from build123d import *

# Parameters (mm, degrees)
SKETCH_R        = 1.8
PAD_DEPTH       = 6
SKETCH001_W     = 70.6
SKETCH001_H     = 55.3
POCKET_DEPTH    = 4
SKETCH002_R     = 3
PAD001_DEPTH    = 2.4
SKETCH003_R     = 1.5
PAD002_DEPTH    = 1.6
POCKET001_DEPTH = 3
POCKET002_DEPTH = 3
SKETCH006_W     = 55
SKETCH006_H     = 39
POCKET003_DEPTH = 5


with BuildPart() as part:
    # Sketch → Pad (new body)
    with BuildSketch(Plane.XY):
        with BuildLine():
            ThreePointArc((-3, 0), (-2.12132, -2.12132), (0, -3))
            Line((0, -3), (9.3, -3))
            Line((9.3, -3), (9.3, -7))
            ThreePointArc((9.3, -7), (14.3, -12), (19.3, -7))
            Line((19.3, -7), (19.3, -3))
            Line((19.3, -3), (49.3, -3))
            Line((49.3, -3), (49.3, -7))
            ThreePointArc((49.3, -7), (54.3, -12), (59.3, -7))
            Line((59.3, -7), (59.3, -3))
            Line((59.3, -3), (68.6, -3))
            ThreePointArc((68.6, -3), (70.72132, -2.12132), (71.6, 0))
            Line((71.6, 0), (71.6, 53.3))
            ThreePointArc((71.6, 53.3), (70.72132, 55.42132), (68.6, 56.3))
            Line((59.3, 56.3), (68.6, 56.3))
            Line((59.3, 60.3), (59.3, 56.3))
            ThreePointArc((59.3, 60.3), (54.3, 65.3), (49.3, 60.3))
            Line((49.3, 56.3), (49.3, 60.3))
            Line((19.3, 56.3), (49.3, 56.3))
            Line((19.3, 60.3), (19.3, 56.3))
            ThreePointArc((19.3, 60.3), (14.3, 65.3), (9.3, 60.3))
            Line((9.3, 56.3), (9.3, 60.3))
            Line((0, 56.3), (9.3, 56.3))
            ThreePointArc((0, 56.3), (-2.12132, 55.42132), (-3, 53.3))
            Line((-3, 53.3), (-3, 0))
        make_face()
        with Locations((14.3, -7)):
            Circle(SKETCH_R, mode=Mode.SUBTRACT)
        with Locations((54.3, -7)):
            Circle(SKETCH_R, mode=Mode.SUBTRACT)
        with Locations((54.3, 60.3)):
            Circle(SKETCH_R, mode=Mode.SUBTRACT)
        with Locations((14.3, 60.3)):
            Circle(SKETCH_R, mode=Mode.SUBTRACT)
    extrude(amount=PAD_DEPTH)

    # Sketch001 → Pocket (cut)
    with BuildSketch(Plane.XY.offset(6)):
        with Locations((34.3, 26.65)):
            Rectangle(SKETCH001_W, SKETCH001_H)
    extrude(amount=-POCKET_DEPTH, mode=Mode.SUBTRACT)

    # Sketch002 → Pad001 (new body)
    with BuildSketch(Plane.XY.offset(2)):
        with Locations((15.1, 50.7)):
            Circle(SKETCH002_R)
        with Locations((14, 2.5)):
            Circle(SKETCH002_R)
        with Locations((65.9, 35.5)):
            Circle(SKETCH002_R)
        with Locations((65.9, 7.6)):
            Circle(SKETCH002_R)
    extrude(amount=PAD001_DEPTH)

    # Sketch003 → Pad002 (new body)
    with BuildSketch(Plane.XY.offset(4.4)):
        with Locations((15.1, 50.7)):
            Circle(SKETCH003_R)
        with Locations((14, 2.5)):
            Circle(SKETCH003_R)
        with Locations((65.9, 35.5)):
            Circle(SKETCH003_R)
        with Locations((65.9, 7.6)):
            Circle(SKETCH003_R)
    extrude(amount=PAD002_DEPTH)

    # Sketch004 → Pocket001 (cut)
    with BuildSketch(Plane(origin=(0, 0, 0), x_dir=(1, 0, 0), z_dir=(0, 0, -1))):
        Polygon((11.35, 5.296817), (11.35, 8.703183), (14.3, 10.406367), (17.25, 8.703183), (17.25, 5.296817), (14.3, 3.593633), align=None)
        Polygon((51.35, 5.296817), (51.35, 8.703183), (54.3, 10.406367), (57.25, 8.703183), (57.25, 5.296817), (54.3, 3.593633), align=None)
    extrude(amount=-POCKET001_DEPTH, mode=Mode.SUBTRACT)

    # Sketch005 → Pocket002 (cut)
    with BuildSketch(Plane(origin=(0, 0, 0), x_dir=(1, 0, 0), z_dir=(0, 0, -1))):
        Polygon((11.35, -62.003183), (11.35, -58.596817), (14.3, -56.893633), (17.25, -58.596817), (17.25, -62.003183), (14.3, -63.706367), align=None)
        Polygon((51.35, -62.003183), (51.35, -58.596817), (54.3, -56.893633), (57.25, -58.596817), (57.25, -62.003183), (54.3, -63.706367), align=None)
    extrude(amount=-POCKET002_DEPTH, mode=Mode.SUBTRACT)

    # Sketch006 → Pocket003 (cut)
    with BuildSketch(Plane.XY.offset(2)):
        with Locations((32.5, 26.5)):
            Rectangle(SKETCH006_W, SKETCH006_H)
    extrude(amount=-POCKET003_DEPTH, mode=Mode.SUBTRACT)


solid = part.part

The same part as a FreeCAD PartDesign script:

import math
import FreeCAD as App
import Part
import Sketcher
from FreeCAD import Vector
Q = App.Units.Quantity

doc = App.newDocument("Part")
params = doc.addObject("Spreadsheet::Sheet", "Params")
for row, (alias, value) in enumerate([
    ("sketch1_radius", "3.000001 mm"),
    ("sketch1_radius2", "5 mm"),
    ("sketch1_diameter", "3.6 mm"),
    ("sketch1_width", "30 mm"),
    ("sketch1_height", "4 mm"),
    ("pad1_length", "6 mm"),
    ("sketch2_width", "70.6 mm"),
    ("sketch2_height", "55.3 mm"),
    ("pocket1_length", "4 mm"),
    ("sketch3_diameter", "6 mm"),
    ("pad2_length", "2.4 mm"),
    ("sketch4_diameter", "3 mm"),
    ("pad3_length", "1.6 mm"),
    ("pocket2_length", "3 mm"),
    ("pocket3_length", "3 mm"),
    ("sketch7_width", "55 mm"),
    ("sketch7_height", "39 mm"),
    ("pocket4_length", "5 mm"),
], start=1):
    params.set(f"A{row}", alias)
    params.set(f"B{row}", "=" + value)
    params.setAlias(f"B{row}", alias)

body = doc.addObject("PartDesign::Body", "Body")

# Sketch on XY plane
sketch1 = body.newObject("Sketcher::SketchObject", "Sketch")
sketch1.AttachmentSupport = (doc.getObject("XY_Plane"), [""])
sketch1.MapMode = "FlatFace"
sketch1.addGeometry(Part.ArcOfCircle(Part.Circle(Vector(0, 0, 0), Vector(0, 0, 1), 3), math.radians(-180), math.radians(-90)), False)
sketch1.addGeometry(Part.LineSegment(Vector(0, -3, 0), Vector(9.3, -3, 0)), False)
sketch1.addGeometry(Part.LineSegment(Vector(9.3, -3, 0), Vector(9.3, -7, 0)), False)
sketch1.addGeometry(Part.ArcOfCircle(Part.Circle(Vector(14.3, -7, 0), Vector(0, 0, 1), 5), math.radians(180), math.radians(360)), False)
sketch1.addGeometry(Part.LineSegment(Vector(19.3, -7, 0), Vector(19.3, -3, 0)), False)
sketch1.addGeometry(Part.LineSegment(Vector(19.3, -3, 0), Vector(49.3, -3, 0)), False)
sketch1.addGeometry(Part.LineSegment(Vector(49.3, -3, 0), Vector(49.3, -7, 0)), False)
sketch1.addGeometry(Part.ArcOfCircle(Part.Circle(Vector(54.3, -7, 0), Vector(0, 0, 1), 5), math.radians(180), math.radians(360)), False)
sketch1.addGeometry(Part.LineSegment(Vector(59.3, -7, 0), Vector(59.3, -3, 0)), False)
sketch1.addGeometry(Part.LineSegment(Vector(59.3, -3, 0), Vector(68.6, -3, 0)), False)
sketch1.addGeometry(Part.ArcOfCircle(Part.Circle(Vector(68.6, 0, 0), Vector(0, 0, 1), 3), math.radians(-90), math.radians(0)), False)
sketch1.addGeometry(Part.LineSegment(Vector(71.6, 0, 0), Vector(71.6, 53.3, 0)), False)
sketch1.addGeometry(Part.ArcOfCircle(Part.Circle(Vector(68.6, 53.3, 0), Vector(0, 0, 1), 3), math.radians(0), math.radians(90)), False)
sketch1.addGeometry(Part.LineSegment(Vector(68.6, 56.3, 0), Vector(59.3, 56.3, 0)), False)
sketch1.addGeometry(Part.LineSegment(Vector(59.3, 56.3, 0), Vector(59.3, 60.3, 0)), False)
sketch1.addGeometry(Part.ArcOfCircle(Part.Circle(Vector(54.3, 60.3, 0), Vector(0, 0, 1), 5), math.radians(0), math.radians(180)), False)
sketch1.addGeometry(Part.LineSegment(Vector(49.3, 60.3, 0), Vector(49.3, 56.3, 0)), False)
sketch1.addGeometry(Part.LineSegment(Vector(49.3, 56.3, 0), Vector(19.3, 56.3, 0)), False)
sketch1.addGeometry(Part.LineSegment(Vector(19.3, 56.3, 0), Vector(19.3, 60.3, 0)), False)
sketch1.addGeometry(Part.ArcOfCircle(Part.Circle(Vector(14.3, 60.3, 0), Vector(0, 0, 1), 5), math.radians(0), math.radians(180)), False)
sketch1.addGeometry(Part.LineSegment(Vector(9.3, 60.3, 0), Vector(9.3, 56.3, 0)), False)
sketch1.addGeometry(Part.LineSegment(Vector(9.3, 56.3, 0), Vector(0, 56.3, 0)), False)
sketch1.addGeometry(Part.ArcOfCircle(Part.Circle(Vector(0, 53.3, 0), Vector(0, 0, 1), 3), math.radians(90), math.radians(180)), False)
sketch1.addGeometry(Part.LineSegment(Vector(-3, 53.3, 0), Vector(-3, 0, 0)), False)
sketch1.addGeometry(Part.Circle(Vector(14.3, -7, 0), Vector(0, 0, 1), 1.8), False)
sketch1.addGeometry(Part.Circle(Vector(54.3, -7, 0), Vector(0, 0, 1), 1.8), False)
sketch1.addGeometry(Part.Circle(Vector(14.3, 60.3, 0), Vector(0, 0, 1), 1.8), False)
sketch1.addGeometry(Part.Circle(Vector(54.3, 60.3, 0), Vector(0, 0, 1), 1.8), False)
sketch1.addConstraint(Sketcher.Constraint("Tangent", 0, 2, 1, 1))
sketch1.addConstraint(Sketcher.Constraint("Coincident", 1, 2, 2, 1))
sketch1.addConstraint(Sketcher.Constraint("Tangent", 2, 2, 3, 1))
sketch1.addConstraint(Sketcher.Constraint("Tangent", 3, 2, 4, 1))
sketch1.addConstraint(Sketcher.Constraint("Coincident", 4, 2, 5, 1))
sketch1.addConstraint(Sketcher.Constraint("Coincident", 5, 2, 6, 1))
sketch1.addConstraint(Sketcher.Constraint("Tangent", 6, 2, 7, 1))
sketch1.addConstraint(Sketcher.Constraint("Tangent", 7, 2, 8, 1))
sketch1.addConstraint(Sketcher.Constraint("Coincident", 8, 2, 9, 1))
sketch1.addConstraint(Sketcher.Constraint("Tangent", 9, 2, 10, 1))
sketch1.addConstraint(Sketcher.Constraint("Tangent", 10, 2, 11, 1))
sketch1.addConstraint(Sketcher.Constraint("Tangent", 11, 2, 12, 1))
sketch1.addConstraint(Sketcher.Constraint("Tangent", 12, 2, 13, 1))
sketch1.addConstraint(Sketcher.Constraint("Coincident", 13, 2, 14, 1))
sketch1.addConstraint(Sketcher.Constraint("Tangent", 14, 2, 15, 1))
sketch1.addConstraint(Sketcher.Constraint("Tangent", 15, 2, 16, 1))
sketch1.addConstraint(Sketcher.Constraint("Coincident", 16, 2, 17, 1))
sketch1.addConstraint(Sketcher.Constraint("Coincident", 17, 2, 18, 1))
sketch1.addConstraint(Sketcher.Constraint("Tangent", 18, 2, 19, 1))
sketch1.addConstraint(Sketcher.Constraint("Tangent", 19, 2, 20, 1))
sketch1.addConstraint(Sketcher.Constraint("Coincident", 20, 2, 21, 1))
sketch1.addConstraint(Sketcher.Constraint("Tangent", 21, 2, 22, 1))
sketch1.addConstraint(Sketcher.Constraint("Tangent", 22, 2, 23, 1))
sketch1.addConstraint(Sketcher.Constraint("Tangent", 23, 2, 0, 1))
sketch1.addConstraint(Sketcher.Constraint("Horizontal", 1))
sketch1.addConstraint(Sketcher.Constraint("Vertical", 2))
sketch1.addConstraint(Sketcher.Constraint("Vertical", 4))
sketch1.addConstraint(Sketcher.Constraint("Horizontal", 5))
sketch1.addConstraint(Sketcher.Constraint("Vertical", 6))
sketch1.addConstraint(Sketcher.Constraint("Vertical", 8))
sketch1.addConstraint(Sketcher.Constraint("Horizontal", 9))
sketch1.addConstraint(Sketcher.Constraint("Vertical", 11))
sketch1.addConstraint(Sketcher.Constraint("Horizontal", 13))
sketch1.addConstraint(Sketcher.Constraint("Vertical", 14))
sketch1.addConstraint(Sketcher.Constraint("Vertical", 16))
sketch1.addConstraint(Sketcher.Constraint("Horizontal", 17))
sketch1.addConstraint(Sketcher.Constraint("Vertical", 18))
sketch1.addConstraint(Sketcher.Constraint("Vertical", 20))
sketch1.addConstraint(Sketcher.Constraint("Horizontal", 21))
sketch1.addConstraint(Sketcher.Constraint("Vertical", 23))
sketch1.addConstraint(Sketcher.Constraint("Coincident", 0, 3, -1, 1))
sketch1.addConstraint(Sketcher.Constraint("Coincident", 24, 3, 3, 3))
sketch1.addConstraint(Sketcher.Constraint("Coincident", 25, 3, 7, 3))
sketch1.addConstraint(Sketcher.Constraint("Coincident", 26, 3, 19, 3))
sketch1.addConstraint(Sketcher.Constraint("Coincident", 27, 3, 15, 3))
sketch1.addConstraint(Sketcher.Constraint("Equal", 3, 7))
sketch1.addConstraint(Sketcher.Constraint("Equal", 0, 10))
sketch1.addConstraint(Sketcher.Constraint("Equal", 10, 12))
sketch1.addConstraint(Sketcher.Constraint("Equal", 7, 15))
sketch1.addConstraint(Sketcher.Constraint("Equal", 15, 19))
sketch1.addConstraint(Sketcher.Constraint("Equal", 12, 22))
sketch1.addConstraint(Sketcher.Constraint("Equal", 24, 25))
sketch1.addConstraint(Sketcher.Constraint("Equal", 25, 26))
sketch1.addConstraint(Sketcher.Constraint("Equal", 26, 27))
sketch1.addConstraint(Sketcher.Constraint("PointOnObject", 10, 3, -1))
sketch1.addConstraint(Sketcher.Constraint("Horizontal", 3, 3, 7, 3))
sketch1.addConstraint(Sketcher.Constraint("Horizontal", 15, 3, 19, 3))
sketch1.addConstraint(Sketcher.Constraint("Horizontal", 12, 3, 22, 3))
sketch1.addConstraint(Sketcher.Constraint("Horizontal", 1, 2, 4, 2))
sketch1.addConstraint(Sketcher.Constraint("Horizontal", 13, 2, 16, 2))
sketch1.addConstraint(Sketcher.Constraint("Vertical", 7, 3, 15, 3))
sketch1.addConstraint(Sketcher.Constraint("Vertical", 3, 3, 19, 3))
sketch1.addConstraint(Sketcher.Constraint("Equal", 1, 9))
sketch1.addConstraint(Sketcher.Constraint("Equal", 8, 14))
sketch1.addConstraint(Sketcher.Constraint("Radius", 0, 3.000001))
sketch1.addConstraint(Sketcher.Constraint("Radius", 3, 5.0))
sketch1.addConstraint(Sketcher.Constraint("Diameter", 24, 3.6))
sketch1.addConstraint(Sketcher.Constraint("DistanceX", 5, 1, 5, 2, 30.0))
sketch1.addConstraint(Sketcher.Constraint("DistanceY", 2, 2, 2, 1, 4.0))
sketch1.addConstraint(Sketcher.Constraint("DistanceX", 1, 1, 1, 2, 9.3))
sketch1.addConstraint(Sketcher.Constraint("DistanceY", 11, 1, 11, 2, 53.3))
sketch1.setExpression("Constraints[64]", "Params.sketch1_radius")
sketch1.setExpression("Constraints[65]", "Params.sketch1_radius2")
sketch1.setExpression("Constraints[66]", "Params.sketch1_diameter")
sketch1.setExpression("Constraints[67]", "Params.sketch1_width")
sketch1.setExpression("Constraints[68]", "Params.sketch1_height")
pad1 = body.newObject("PartDesign::Pad", "Pad")
pad1.Profile = sketch1
pad1.setExpression("Length", "Params.pad1_length")

# Sketch on XY plane
sketch2 = body.newObject("Sketcher::SketchObject", "Sketch001")
sketch2.AttachmentSupport = (doc.getObject("XY_Plane"), [""])
sketch2.MapMode = "FlatFace"
sketch2.AttachmentOffset = App.Placement(Vector(0, 0, 6), App.Rotation())
sketch2.addGeometry(Part.LineSegment(Vector(-1, 54, 0), Vector(-1, -1, 0)), False)
sketch2.addGeometry(Part.LineSegment(Vector(-1, -1, 0), Vector(70, -1, 0)), False)
sketch2.addGeometry(Part.LineSegment(Vector(70, -1, 0), Vector(70, 54, 0)), False)
sketch2.addGeometry(Part.LineSegment(Vector(70, 54, 0), Vector(-1, 54, 0)), False)
sketch2.addConstraint(Sketcher.Constraint("Coincident", 0, 2, 1, 1))
sketch2.addConstraint(Sketcher.Constraint("Coincident", 1, 2, 2, 1))
sketch2.addConstraint(Sketcher.Constraint("Coincident", 2, 2, 3, 1))
sketch2.addConstraint(Sketcher.Constraint("Coincident", 3, 2, 0, 1))
sketch2.addConstraint(Sketcher.Constraint("Vertical", 0))
sketch2.addConstraint(Sketcher.Constraint("Horizontal", 1))
sketch2.addConstraint(Sketcher.Constraint("Vertical", 2))
sketch2.addConstraint(Sketcher.Constraint("Horizontal", 3))
sketch2.addConstraint(Sketcher.Constraint("DistanceX", 1, 1, 1, 2, 70.6))
sketch2.addConstraint(Sketcher.Constraint("DistanceY", 0, 2, 0, 1, 55.3))
sketch2.addConstraint(Sketcher.Constraint("DistanceX", 0, 2, -1, 1, 1.0))
sketch2.addConstraint(Sketcher.Constraint("DistanceY", 0, 2, -1, 1, 1.0))
sketch2.setExpression("Constraints[8]", "Params.sketch2_width")
sketch2.setExpression("Constraints[9]", "Params.sketch2_height")
pocket1 = body.newObject("PartDesign::Pocket", "Pocket")
pocket1.Profile = sketch2
pocket1.setExpression("Length", "Params.pocket1_length")

# Sketch on XY plane
sketch3 = body.newObject("Sketcher::SketchObject", "Sketch002")
sketch3.AttachmentSupport = (doc.getObject("XY_Plane"), [""])
sketch3.MapMode = "FlatFace"
sketch3.AttachmentOffset = App.Placement(Vector(0, 0, 2), App.Rotation())
sketch3.addGeometry(Part.Circle(Vector(15.1, 50.7, 0), Vector(0, 0, 1), 3), False)
sketch3.addGeometry(Part.Circle(Vector(14, 2.5, 0), Vector(0, 0, 1), 3), False)
sketch3.addGeometry(Part.Circle(Vector(65.9, 35.5, 0), Vector(0, 0, 1), 3), False)
sketch3.addGeometry(Part.Circle(Vector(65.9, 7.6, 0), Vector(0, 0, 1), 3), False)
sketch3.addConstraint(Sketcher.Constraint("Equal", 0, 1))
sketch3.addConstraint(Sketcher.Constraint("Equal", 1, 2))
sketch3.addConstraint(Sketcher.Constraint("Equal", 2, 3))
sketch3.addConstraint(Sketcher.Constraint("Vertical", 2, 3, 3, 3))
sketch3.addConstraint(Sketcher.Constraint("Diameter", 0, 6.0))
sketch3.addConstraint(Sketcher.Constraint("DistanceX", -1, 1, 1, 3, 14.0))
sketch3.addConstraint(Sketcher.Constraint("DistanceY", 1, 3, 2, 3, 33.0))
sketch3.addConstraint(Sketcher.Constraint("DistanceX", -1, 1, 0, 3, 15.1))
sketch3.addConstraint(Sketcher.Constraint("DistanceY", -1, 1, 0, 3, 50.7))
sketch3.addConstraint(Sketcher.Constraint("DistanceY", -1, 1, 1, 3, 2.5))
sketch3.addConstraint(Sketcher.Constraint("DistanceX", -1, 1, 2, 3, 65.9))
sketch3.addConstraint(Sketcher.Constraint("DistanceY", -1, 1, 3, 3, 7.6))
sketch3.setExpression("Constraints[4]", "Params.sketch3_diameter")
pad2 = body.newObject("PartDesign::Pad", "Pad001")
pad2.Profile = sketch3
pad2.setExpression("Length", "Params.pad2_length")

# Sketch on XY plane
sketch4 = body.newObject("Sketcher::SketchObject", "Sketch003")
sketch4.AttachmentSupport = (doc.getObject("XY_Plane"), [""])
sketch4.MapMode = "FlatFace"
sketch4.AttachmentOffset = App.Placement(Vector(0, 0, 4.4), App.Rotation())
sketch4.addGeometry(Part.Circle(Vector(15.1, 50.7, 0), Vector(0, 0, 1), 1.5), False)
sketch4.addGeometry(Part.Circle(Vector(14, 2.5, 0), Vector(0, 0, 1), 1.5), False)
sketch4.addGeometry(Part.Circle(Vector(65.9, 35.5, 0), Vector(0, 0, 1), 1.5), False)
sketch4.addGeometry(Part.Circle(Vector(65.9, 7.6, 0), Vector(0, 0, 1), 1.5), False)
sketch4.addConstraint(Sketcher.Constraint("Equal", 0, 1))
sketch4.addConstraint(Sketcher.Constraint("Equal", 1, 2))
sketch4.addConstraint(Sketcher.Constraint("Equal", 2, 3))
sketch4.addConstraint(Sketcher.Constraint("Vertical", 2, 3, 3, 3))
sketch4.addConstraint(Sketcher.Constraint("Diameter", 0, 3.0))
sketch4.addConstraint(Sketcher.Constraint("DistanceX", -1, 1, 1, 3, 14.0))
sketch4.addConstraint(Sketcher.Constraint("DistanceY", 1, 3, 2, 3, 33.0))
sketch4.addConstraint(Sketcher.Constraint("DistanceX", -1, 1, 0, 3, 15.1))
sketch4.addConstraint(Sketcher.Constraint("DistanceY", -1, 1, 0, 3, 50.7))
sketch4.addConstraint(Sketcher.Constraint("DistanceY", -1, 1, 1, 3, 2.5))
sketch4.addConstraint(Sketcher.Constraint("DistanceX", -1, 1, 2, 3, 65.9))
sketch4.addConstraint(Sketcher.Constraint("DistanceY", -1, 1, 3, 3, 7.6))
sketch4.setExpression("Constraints[4]", "Params.sketch4_diameter")
pad3 = body.newObject("PartDesign::Pad", "Pad002")
pad3.Profile = sketch4
pad3.setExpression("Length", "Params.pad3_length")

# Sketch on XY plane
sketch5 = body.newObject("Sketcher::SketchObject", "Sketch004")
sketch5.AttachmentSupport = (doc.getObject("XY_Plane"), [""])
sketch5.MapMode = "FlatFace"
sketch5.addGeometry(Part.LineSegment(Vector(11.3, -8.7, 0), Vector(11.3, -5.3, 0)), False)
sketch5.addGeometry(Part.LineSegment(Vector(11.3, -5.3, 0), Vector(14.3, -3.6, 0)), False)
sketch5.addGeometry(Part.LineSegment(Vector(14.3, -3.6, 0), Vector(17.2, -5.3, 0)), False)
sketch5.addGeometry(Part.LineSegment(Vector(17.2, -5.3, 0), Vector(17.2, -8.7, 0)), False)
sketch5.addGeometry(Part.LineSegment(Vector(17.2, -8.7, 0), Vector(14.3, -10.4, 0)), False)
sketch5.addGeometry(Part.LineSegment(Vector(14.3, -10.4, 0), Vector(11.3, -8.7, 0)), False)
sketch5.addGeometry(Part.LineSegment(Vector(51.4, -8.7, 0), Vector(51.4, -5.3, 0)), False)
sketch5.addGeometry(Part.LineSegment(Vector(51.4, -5.3, 0), Vector(54.3, -3.6, 0)), False)
sketch5.addGeometry(Part.LineSegment(Vector(54.3, -3.6, 0), Vector(57.2, -5.3, 0)), False)
sketch5.addGeometry(Part.LineSegment(Vector(57.2, -5.3, 0), Vector(57.2, -8.7, 0)), False)
sketch5.addGeometry(Part.LineSegment(Vector(57.2, -8.7, 0), Vector(54.3, -10.4, 0)), False)
sketch5.addGeometry(Part.LineSegment(Vector(54.3, -10.4, 0), Vector(51.4, -8.7, 0)), False)
sketch5.addConstraint(Sketcher.Constraint("Coincident", 0, 2, 1, 1))
sketch5.addConstraint(Sketcher.Constraint("Coincident", 1, 2, 2, 1))
sketch5.addConstraint(Sketcher.Constraint("Coincident", 2, 2, 3, 1))
sketch5.addConstraint(Sketcher.Constraint("Coincident", 3, 2, 4, 1))
sketch5.addConstraint(Sketcher.Constraint("Coincident", 4, 2, 5, 1))
sketch5.addConstraint(Sketcher.Constraint("Coincident", 5, 2, 0, 1))
sketch5.addConstraint(Sketcher.Constraint("Coincident", 6, 2, 7, 1))
sketch5.addConstraint(Sketcher.Constraint("Coincident", 7, 2, 8, 1))
sketch5.addConstraint(Sketcher.Constraint("Coincident", 8, 2, 9, 1))
sketch5.addConstraint(Sketcher.Constraint("Coincident", 9, 2, 10, 1))
sketch5.addConstraint(Sketcher.Constraint("Coincident", 10, 2, 11, 1))
sketch5.addConstraint(Sketcher.Constraint("Coincident", 11, 2, 6, 1))
sketch5.addConstraint(Sketcher.Constraint("Vertical", 0))
sketch5.addConstraint(Sketcher.Constraint("Vertical", 3))
sketch5.addConstraint(Sketcher.Constraint("Vertical", 6))
sketch5.addConstraint(Sketcher.Constraint("Vertical", 9))
sketch5.addConstraint(Sketcher.Constraint("Parallel", 1, 4))
sketch5.addConstraint(Sketcher.Constraint("Parallel", 2, 5))
sketch5.addConstraint(Sketcher.Constraint("Parallel", 4, 7))
sketch5.addConstraint(Sketcher.Constraint("Parallel", 5, 8))
sketch5.addConstraint(Sketcher.Constraint("Parallel", 7, 10))
sketch5.addConstraint(Sketcher.Constraint("Parallel", 8, 11))
sketch5.addConstraint(Sketcher.Constraint("Horizontal", 0, 2, 2, 2))
sketch5.addConstraint(Sketcher.Constraint("Horizontal", 3, 2, 5, 2))
sketch5.addConstraint(Sketcher.Constraint("Horizontal", 2, 2, 6, 2))
sketch5.addConstraint(Sketcher.Constraint("Horizontal", 1, 2, 7, 2))
sketch5.addConstraint(Sketcher.Constraint("Horizontal", 6, 2, 8, 2))
sketch5.addConstraint(Sketcher.Constraint("Horizontal", 5, 2, 9, 2))
sketch5.addConstraint(Sketcher.Constraint("Horizontal", 4, 2, 10, 2))
sketch5.addConstraint(Sketcher.Constraint("Vertical", 1, 2, 4, 2))
sketch5.addConstraint(Sketcher.Constraint("Angle", 1, Q("30.00001 deg")))
sketch5.addConstraint(Sketcher.Constraint("DistanceX", 0, 2, 6, 2, 40.0))
sketch5.addConstraint(Sketcher.Constraint("DistanceX", -1, 1, 1, 2, 14.3))
sketch5.addConstraint(Sketcher.Constraint("DistanceX", 0, 2, 2, 2, 5.9))
sketch5.addConstraint(Sketcher.Constraint("DistanceY", 0, 1, 0, 2, 3.406366))
sketch5.addConstraint(Sketcher.Constraint("DistanceY", 0, 2, -1, 1, 5.296817))
pocket2 = body.newObject("PartDesign::Pocket", "Pocket001")
pocket2.Profile = sketch5
pocket2.setExpression("Length", "Params.pocket2_length")
pocket2.Reversed = True

# Sketch on XY plane
sketch6 = body.newObject("Sketcher::SketchObject", "Sketch005")
sketch6.AttachmentSupport = (doc.getObject("XY_Plane"), [""])
sketch6.MapMode = "FlatFace"
sketch6.addGeometry(Part.LineSegment(Vector(11.3, 58.6, 0), Vector(11.3, 62, 0)), False)
sketch6.addGeometry(Part.LineSegment(Vector(11.3, 62, 0), Vector(14.3, 63.7, 0)), False)
sketch6.addGeometry(Part.LineSegment(Vector(14.3, 63.7, 0), Vector(17.2, 62, 0)), False)
sketch6.addGeometry(Part.LineSegment(Vector(17.2, 62, 0), Vector(17.2, 58.6, 0)), False)
sketch6.addGeometry(Part.LineSegment(Vector(17.2, 58.6, 0), Vector(14.3, 56.9, 0)), False)
sketch6.addGeometry(Part.LineSegment(Vector(14.3, 56.9, 0), Vector(11.3, 58.6, 0)), False)
sketch6.addGeometry(Part.LineSegment(Vector(51.4, 58.6, 0), Vector(51.4, 62, 0)), False)
sketch6.addGeometry(Part.LineSegment(Vector(51.4, 62, 0), Vector(54.3, 63.7, 0)), False)
sketch6.addGeometry(Part.LineSegment(Vector(54.3, 63.7, 0), Vector(57.2, 62, 0)), False)
sketch6.addGeometry(Part.LineSegment(Vector(57.2, 62, 0), Vector(57.2, 58.6, 0)), False)
sketch6.addGeometry(Part.LineSegment(Vector(57.2, 58.6, 0), Vector(54.3, 56.9, 0)), False)
sketch6.addGeometry(Part.LineSegment(Vector(54.3, 56.9, 0), Vector(51.4, 58.6, 0)), False)
sketch6.addConstraint(Sketcher.Constraint("Coincident", 0, 2, 1, 1))
sketch6.addConstraint(Sketcher.Constraint("Coincident", 1, 2, 2, 1))
sketch6.addConstraint(Sketcher.Constraint("Coincident", 2, 2, 3, 1))
sketch6.addConstraint(Sketcher.Constraint("Coincident", 3, 2, 4, 1))
sketch6.addConstraint(Sketcher.Constraint("Coincident", 4, 2, 5, 1))
sketch6.addConstraint(Sketcher.Constraint("Coincident", 5, 2, 0, 1))
sketch6.addConstraint(Sketcher.Constraint("Coincident", 6, 2, 7, 1))
sketch6.addConstraint(Sketcher.Constraint("Coincident", 7, 2, 8, 1))
sketch6.addConstraint(Sketcher.Constraint("Coincident", 8, 2, 9, 1))
sketch6.addConstraint(Sketcher.Constraint("Coincident", 9, 2, 10, 1))
sketch6.addConstraint(Sketcher.Constraint("Coincident", 10, 2, 11, 1))
sketch6.addConstraint(Sketcher.Constraint("Coincident", 11, 2, 6, 1))
sketch6.addConstraint(Sketcher.Constraint("Vertical", 0))
sketch6.addConstraint(Sketcher.Constraint("Vertical", 3))
sketch6.addConstraint(Sketcher.Constraint("Vertical", 6))
sketch6.addConstraint(Sketcher.Constraint("Vertical", 9))
sketch6.addConstraint(Sketcher.Constraint("Parallel", 1, 4))
sketch6.addConstraint(Sketcher.Constraint("Parallel", 2, 5))
sketch6.addConstraint(Sketcher.Constraint("Parallel", 4, 7))
sketch6.addConstraint(Sketcher.Constraint("Parallel", 5, 8))
sketch6.addConstraint(Sketcher.Constraint("Parallel", 7, 10))
sketch6.addConstraint(Sketcher.Constraint("Parallel", 8, 11))
sketch6.addConstraint(Sketcher.Constraint("Horizontal", 0, 2, 2, 2))
sketch6.addConstraint(Sketcher.Constraint("Horizontal", 3, 2, 5, 2))
sketch6.addConstraint(Sketcher.Constraint("Horizontal", 2, 2, 6, 2))
sketch6.addConstraint(Sketcher.Constraint("Horizontal", 1, 2, 7, 2))
sketch6.addConstraint(Sketcher.Constraint("Horizontal", 6, 2, 8, 2))
sketch6.addConstraint(Sketcher.Constraint("Horizontal", 5, 2, 9, 2))
sketch6.addConstraint(Sketcher.Constraint("Horizontal", 4, 2, 10, 2))
sketch6.addConstraint(Sketcher.Constraint("Vertical", 1, 2, 4, 2))
sketch6.addConstraint(Sketcher.Constraint("Angle", 1, Q("30.00001 deg")))
sketch6.addConstraint(Sketcher.Constraint("DistanceX", 0, 2, 6, 2, 40.0))
sketch6.addConstraint(Sketcher.Constraint("DistanceX", -1, 1, 1, 2, 14.3))
sketch6.addConstraint(Sketcher.Constraint("DistanceX", 0, 2, 2, 2, 5.9))
sketch6.addConstraint(Sketcher.Constraint("DistanceY", 0, 1, 0, 2, 3.406366))
sketch6.addConstraint(Sketcher.Constraint("DistanceY", -1, 1, 0, 2, 62.003183))
pocket3 = body.newObject("PartDesign::Pocket", "Pocket002")
pocket3.Profile = sketch6
pocket3.setExpression("Length", "Params.pocket3_length")
pocket3.Reversed = True

# Sketch on XY plane
sketch7 = body.newObject("Sketcher::SketchObject", "Sketch006")
sketch7.AttachmentSupport = (doc.getObject("XY_Plane"), [""])
sketch7.MapMode = "FlatFace"
sketch7.AttachmentOffset = App.Placement(Vector(0, 0, 2), App.Rotation())
sketch7.addGeometry(Part.LineSegment(Vector(5, 46, 0), Vector(5, 7, 0)), False)
sketch7.addGeometry(Part.LineSegment(Vector(5, 7, 0), Vector(60, 7, 0)), False)
sketch7.addGeometry(Part.LineSegment(Vector(60, 7, 0), Vector(60, 46, 0)), False)
sketch7.addGeometry(Part.LineSegment(Vector(60, 46, 0), Vector(5, 46, 0)), False)
sketch7.addConstraint(Sketcher.Constraint("Coincident", 0, 2, 1, 1))
sketch7.addConstraint(Sketcher.Constraint("Coincident", 1, 2, 2, 1))
sketch7.addConstraint(Sketcher.Constraint("Coincident", 2, 2, 3, 1))
sketch7.addConstraint(Sketcher.Constraint("Coincident", 3, 2, 0, 1))
sketch7.addConstraint(Sketcher.Constraint("Vertical", 0))
sketch7.addConstraint(Sketcher.Constraint("Horizontal", 1))
sketch7.addConstraint(Sketcher.Constraint("Vertical", 2))
sketch7.addConstraint(Sketcher.Constraint("Horizontal", 3))
sketch7.addConstraint(Sketcher.Constraint("DistanceX", 1, 1, 1, 2, 55.0))
sketch7.addConstraint(Sketcher.Constraint("DistanceY", 0, 2, 0, 1, 39.0))
sketch7.addConstraint(Sketcher.Constraint("DistanceX", -1, 1, 0, 2, 5.0))
sketch7.addConstraint(Sketcher.Constraint("DistanceY", -1, 1, 0, 2, 7.0))
sketch7.setExpression("Constraints[8]", "Params.sketch7_width")
sketch7.setExpression("Constraints[9]", "Params.sketch7_height")
pocket4 = body.newObject("PartDesign::Pocket", "Pocket003")
pocket4.Profile = sketch7
pocket4.setExpression("Length", "Params.pocket4_length")

doc.recompute()
